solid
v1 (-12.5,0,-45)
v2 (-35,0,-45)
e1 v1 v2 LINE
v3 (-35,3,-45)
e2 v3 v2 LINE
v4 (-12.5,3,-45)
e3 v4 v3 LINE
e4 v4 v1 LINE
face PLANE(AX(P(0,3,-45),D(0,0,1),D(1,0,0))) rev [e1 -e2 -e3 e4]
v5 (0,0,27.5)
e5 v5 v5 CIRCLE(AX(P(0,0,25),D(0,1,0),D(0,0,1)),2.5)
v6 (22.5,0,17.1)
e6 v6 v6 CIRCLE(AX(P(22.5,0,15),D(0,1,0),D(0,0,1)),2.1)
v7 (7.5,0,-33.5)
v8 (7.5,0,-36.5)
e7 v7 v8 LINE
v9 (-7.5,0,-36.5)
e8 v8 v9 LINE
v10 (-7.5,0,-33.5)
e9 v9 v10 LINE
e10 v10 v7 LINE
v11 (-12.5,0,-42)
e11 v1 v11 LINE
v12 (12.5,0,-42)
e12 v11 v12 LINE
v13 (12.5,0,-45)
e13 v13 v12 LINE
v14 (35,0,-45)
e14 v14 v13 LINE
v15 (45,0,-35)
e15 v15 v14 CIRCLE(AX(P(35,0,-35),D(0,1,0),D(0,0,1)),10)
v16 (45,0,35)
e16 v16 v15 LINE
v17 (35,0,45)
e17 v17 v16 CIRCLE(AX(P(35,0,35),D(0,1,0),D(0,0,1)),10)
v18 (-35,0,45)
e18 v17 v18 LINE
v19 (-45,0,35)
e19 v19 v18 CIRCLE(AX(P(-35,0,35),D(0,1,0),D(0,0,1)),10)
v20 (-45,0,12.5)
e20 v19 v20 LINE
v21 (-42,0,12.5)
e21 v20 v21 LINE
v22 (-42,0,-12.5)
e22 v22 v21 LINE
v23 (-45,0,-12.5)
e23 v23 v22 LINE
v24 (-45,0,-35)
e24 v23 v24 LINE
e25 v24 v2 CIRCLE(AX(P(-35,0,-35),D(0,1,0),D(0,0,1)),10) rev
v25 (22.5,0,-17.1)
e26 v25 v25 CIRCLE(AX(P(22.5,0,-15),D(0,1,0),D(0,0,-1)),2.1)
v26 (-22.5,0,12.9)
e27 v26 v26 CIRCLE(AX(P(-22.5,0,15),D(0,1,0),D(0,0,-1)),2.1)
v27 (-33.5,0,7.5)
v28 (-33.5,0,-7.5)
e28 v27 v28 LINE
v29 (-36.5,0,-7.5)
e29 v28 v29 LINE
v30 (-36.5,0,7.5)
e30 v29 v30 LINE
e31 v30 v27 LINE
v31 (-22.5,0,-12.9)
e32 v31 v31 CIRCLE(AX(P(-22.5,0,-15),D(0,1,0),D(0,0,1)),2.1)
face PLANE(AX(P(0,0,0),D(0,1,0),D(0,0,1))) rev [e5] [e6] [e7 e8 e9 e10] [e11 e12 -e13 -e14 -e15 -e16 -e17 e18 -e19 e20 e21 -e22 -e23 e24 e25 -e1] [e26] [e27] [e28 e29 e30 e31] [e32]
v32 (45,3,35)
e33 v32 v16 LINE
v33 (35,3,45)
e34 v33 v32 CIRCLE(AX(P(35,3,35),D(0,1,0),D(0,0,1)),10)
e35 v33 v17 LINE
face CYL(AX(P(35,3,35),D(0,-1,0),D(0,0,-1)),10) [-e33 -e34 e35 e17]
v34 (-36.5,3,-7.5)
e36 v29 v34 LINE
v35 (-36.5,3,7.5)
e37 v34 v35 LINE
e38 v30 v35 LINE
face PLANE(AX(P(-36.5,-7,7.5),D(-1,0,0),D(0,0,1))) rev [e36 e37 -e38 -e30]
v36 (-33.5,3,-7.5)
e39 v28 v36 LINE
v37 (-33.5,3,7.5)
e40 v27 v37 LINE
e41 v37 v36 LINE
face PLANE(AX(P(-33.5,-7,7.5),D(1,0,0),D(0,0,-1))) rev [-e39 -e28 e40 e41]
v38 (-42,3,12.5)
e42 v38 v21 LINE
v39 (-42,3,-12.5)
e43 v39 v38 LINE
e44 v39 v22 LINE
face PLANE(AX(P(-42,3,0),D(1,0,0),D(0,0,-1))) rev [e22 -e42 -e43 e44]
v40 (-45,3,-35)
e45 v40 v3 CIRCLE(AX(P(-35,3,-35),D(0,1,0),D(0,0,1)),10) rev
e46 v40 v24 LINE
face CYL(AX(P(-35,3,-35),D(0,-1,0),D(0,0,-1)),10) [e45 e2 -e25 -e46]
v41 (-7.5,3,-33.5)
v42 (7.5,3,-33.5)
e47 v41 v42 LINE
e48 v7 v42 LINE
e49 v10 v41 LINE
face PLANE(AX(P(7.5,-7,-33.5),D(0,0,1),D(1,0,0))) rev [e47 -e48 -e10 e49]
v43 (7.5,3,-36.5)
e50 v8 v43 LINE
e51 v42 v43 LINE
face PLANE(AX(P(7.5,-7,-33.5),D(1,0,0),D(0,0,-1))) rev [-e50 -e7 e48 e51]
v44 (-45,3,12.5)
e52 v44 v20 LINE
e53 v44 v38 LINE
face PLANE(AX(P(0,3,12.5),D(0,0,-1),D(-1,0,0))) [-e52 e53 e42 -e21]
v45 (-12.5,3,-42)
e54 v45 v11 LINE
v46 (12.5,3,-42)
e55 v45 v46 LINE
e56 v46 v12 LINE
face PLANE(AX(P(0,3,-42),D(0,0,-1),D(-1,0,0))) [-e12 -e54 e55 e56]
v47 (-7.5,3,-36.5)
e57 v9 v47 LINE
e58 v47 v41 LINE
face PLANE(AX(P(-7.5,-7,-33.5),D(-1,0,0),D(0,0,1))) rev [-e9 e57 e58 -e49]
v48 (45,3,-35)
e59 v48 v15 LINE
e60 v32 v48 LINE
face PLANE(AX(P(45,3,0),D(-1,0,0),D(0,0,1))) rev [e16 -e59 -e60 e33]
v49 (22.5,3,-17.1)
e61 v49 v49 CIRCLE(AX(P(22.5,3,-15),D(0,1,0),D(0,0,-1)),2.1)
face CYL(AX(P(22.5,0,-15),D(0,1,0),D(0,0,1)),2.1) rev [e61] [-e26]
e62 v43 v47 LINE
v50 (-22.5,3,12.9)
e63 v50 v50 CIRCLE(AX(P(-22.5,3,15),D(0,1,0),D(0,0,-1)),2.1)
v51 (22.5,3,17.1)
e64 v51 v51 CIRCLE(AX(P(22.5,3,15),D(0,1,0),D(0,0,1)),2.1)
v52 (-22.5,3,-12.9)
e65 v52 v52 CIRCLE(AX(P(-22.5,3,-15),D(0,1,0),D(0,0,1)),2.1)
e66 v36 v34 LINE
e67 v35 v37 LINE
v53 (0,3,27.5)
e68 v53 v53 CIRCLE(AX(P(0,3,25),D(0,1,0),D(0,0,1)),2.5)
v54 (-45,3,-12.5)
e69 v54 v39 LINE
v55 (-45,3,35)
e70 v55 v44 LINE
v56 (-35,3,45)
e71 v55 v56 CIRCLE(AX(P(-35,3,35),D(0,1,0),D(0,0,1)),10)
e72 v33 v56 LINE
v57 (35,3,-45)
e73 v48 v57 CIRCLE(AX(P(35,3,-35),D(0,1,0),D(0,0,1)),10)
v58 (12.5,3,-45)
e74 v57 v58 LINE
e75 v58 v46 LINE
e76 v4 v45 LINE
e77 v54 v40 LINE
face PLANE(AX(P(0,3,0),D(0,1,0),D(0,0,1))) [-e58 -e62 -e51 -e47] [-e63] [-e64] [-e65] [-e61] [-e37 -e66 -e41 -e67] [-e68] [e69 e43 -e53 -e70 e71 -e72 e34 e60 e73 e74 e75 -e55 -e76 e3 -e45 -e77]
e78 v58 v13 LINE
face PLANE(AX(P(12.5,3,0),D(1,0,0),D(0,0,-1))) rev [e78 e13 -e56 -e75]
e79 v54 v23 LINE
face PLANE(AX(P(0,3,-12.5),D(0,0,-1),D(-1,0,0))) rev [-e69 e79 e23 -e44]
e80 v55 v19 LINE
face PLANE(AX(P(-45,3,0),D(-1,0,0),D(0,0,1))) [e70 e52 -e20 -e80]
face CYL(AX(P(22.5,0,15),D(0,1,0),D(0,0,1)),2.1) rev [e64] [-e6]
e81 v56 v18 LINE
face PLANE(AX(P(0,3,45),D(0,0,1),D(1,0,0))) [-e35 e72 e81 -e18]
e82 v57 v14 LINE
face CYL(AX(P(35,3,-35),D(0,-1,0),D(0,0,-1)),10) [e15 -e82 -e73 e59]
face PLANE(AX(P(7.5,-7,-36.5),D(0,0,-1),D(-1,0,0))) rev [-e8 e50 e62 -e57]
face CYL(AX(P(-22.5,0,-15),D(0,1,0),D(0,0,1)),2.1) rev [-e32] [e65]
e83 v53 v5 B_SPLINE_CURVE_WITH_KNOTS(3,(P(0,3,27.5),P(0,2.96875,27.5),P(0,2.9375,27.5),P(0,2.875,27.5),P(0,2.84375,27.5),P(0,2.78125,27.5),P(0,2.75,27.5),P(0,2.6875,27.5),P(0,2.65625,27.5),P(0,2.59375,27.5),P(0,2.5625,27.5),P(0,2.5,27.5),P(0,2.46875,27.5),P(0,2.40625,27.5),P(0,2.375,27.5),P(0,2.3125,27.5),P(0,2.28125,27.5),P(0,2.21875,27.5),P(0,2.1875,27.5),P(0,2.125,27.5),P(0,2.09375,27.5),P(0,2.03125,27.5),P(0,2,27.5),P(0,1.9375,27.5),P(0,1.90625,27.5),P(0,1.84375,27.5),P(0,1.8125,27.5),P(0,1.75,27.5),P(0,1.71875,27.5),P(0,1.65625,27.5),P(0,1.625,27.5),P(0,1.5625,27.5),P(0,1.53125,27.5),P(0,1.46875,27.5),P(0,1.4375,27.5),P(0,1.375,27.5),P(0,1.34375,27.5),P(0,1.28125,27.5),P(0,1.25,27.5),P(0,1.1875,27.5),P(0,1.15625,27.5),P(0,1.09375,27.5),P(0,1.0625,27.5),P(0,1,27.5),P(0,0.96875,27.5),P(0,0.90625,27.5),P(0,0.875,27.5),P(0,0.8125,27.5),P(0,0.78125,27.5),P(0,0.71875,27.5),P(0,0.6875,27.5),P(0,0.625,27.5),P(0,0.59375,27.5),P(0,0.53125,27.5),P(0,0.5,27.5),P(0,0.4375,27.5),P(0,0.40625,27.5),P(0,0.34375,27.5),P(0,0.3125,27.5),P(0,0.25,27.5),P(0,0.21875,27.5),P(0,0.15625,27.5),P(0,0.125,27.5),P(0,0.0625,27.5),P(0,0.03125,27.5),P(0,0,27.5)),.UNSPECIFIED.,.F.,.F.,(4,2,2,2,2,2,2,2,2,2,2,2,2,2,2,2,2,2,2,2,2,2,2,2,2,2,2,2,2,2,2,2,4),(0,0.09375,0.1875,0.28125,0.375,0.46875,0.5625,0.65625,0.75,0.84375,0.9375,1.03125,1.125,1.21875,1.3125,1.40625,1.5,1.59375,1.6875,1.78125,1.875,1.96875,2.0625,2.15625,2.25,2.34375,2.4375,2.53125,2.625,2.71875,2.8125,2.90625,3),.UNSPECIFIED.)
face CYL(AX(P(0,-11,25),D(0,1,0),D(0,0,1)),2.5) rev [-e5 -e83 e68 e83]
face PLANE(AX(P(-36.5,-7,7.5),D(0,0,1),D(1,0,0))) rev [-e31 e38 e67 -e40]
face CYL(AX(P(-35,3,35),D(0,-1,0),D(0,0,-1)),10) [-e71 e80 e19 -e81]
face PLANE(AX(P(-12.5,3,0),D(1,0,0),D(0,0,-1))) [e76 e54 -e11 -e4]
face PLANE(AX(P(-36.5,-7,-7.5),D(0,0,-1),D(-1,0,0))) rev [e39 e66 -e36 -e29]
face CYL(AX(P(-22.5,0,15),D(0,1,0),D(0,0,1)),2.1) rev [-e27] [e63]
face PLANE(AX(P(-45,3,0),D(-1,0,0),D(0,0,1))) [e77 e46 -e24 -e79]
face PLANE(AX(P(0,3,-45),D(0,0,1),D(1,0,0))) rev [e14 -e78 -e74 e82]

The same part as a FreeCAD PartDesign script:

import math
import FreeCAD as App
import Part
import Sketcher


def add_polygon(sketch, points):
    """Adds a closed chain of lines whose ends are joined by coincident constraints."""
    first, n = sketch.GeometryCount, len(points)
    for a, b in zip(points, points[1:] + points[:1]):
        sketch.addGeometry(Part.LineSegment(App.Vector(*a, 0), App.Vector(*b, 0)), False)
    for i in range(n):
        sketch.addConstraint(Sketcher.Constraint("Coincident", first + i, 2, first + (i + 1) % n, 1))

doc = App.newDocument("Part")
body = doc.addObject("PartDesign::Body", "Body")

# Sketch on XZ plane
sketch1 = body.newObject("Sketcher::SketchObject", "Sketch")
sketch1.AttachmentSupport = (doc.getObject("XZ_Plane"), [""])
sketch1.MapMode = "FlatFace"
sketch1.addGeometry([
    Part.LineSegment(App.Vector(-35, 45, 0), App.Vector(35, 45, 0)),  # 0
    Part.ArcOfCircle(Part.Circle(App.Vector(35, 35, 0), App.Vector(0, 0, 1), 10), math.radians(0), math.radians(90)),  # 1
    Part.LineSegment(App.Vector(45, 35, 0), App.Vector(45, -35, 0)),  # 2
    Part.ArcOfCircle(Part.Circle(App.Vector(35, -35, 0), App.Vector(0, 0, 1), 10), math.radians(-90), math.radians(0)),  # 3
    Part.LineSegment(App.Vector(35, -45, 0), App.Vector(12.5, -45, 0)),  # 4
    Part.LineSegment(App.Vector(12.5, -45, 0), App.Vector(12.5, -42, 0)),  # 5
    Part.LineSegment(App.Vector(12.5, -42, 0), App.Vector(-12.5, -42, 0)),  # 6
    Part.LineSegment(App.Vector(-12.5, -42, 0), App.Vector(-12.5, -45, 0)),  # 7
    Part.LineSegment(App.Vector(-12.5, -45, 0), App.Vector(-35, -45, 0)),  # 8
    Part.ArcOfCircle(Part.Circle(App.Vector(-35, -35, 0), App.Vector(0, 0, 1), 10), math.radians(180), math.radians(270)),  # 9
    Part.LineSegment(App.Vector(-45, -35, 0), App.Vector(-45, -12.5, 0)),  # 10
    Part.LineSegment(App.Vector(-45, -12.5, 0), App.Vector(-42, -12.5, 0)),  # 11
    Part.LineSegment(App.Vector(-42, -12.5, 0), App.Vector(-42, 12.5, 0)),  # 12
    Part.LineSegment(App.Vector(-42, 12.5, 0), App.Vector(-45, 12.5, 0)),  # 13
    Part.LineSegment(App.Vector(-45, 12.5, 0), App.Vector(-45, 35, 0)),  # 14
    Part.ArcOfCircle(Part.Circle(App.Vector(-35, 35, 0), App.Vector(0, 0, 1), 10), math.radians(90), math.radians(180)),  # 15
], False)
sketch1.addConstraint([
    Sketcher.Constraint("Tangent", 0, 2, 1, 2),
    Sketcher.Constraint("Tangent", 1, 1, 2, 1),
    Sketcher.Constraint("Tangent", 2, 2, 3, 2),
    Sketcher.Constraint("Tangent", 3, 1, 4, 1),
    Sketcher.Constraint("Coincident", 4, 2, 5, 1),
    Sketcher.Constraint("Coincident", 5, 2, 6, 1),
    Sketcher.Constraint("Coincident", 6, 2, 7, 1),
    Sketcher.Constraint("Coincident", 7, 2, 8, 1),
    Sketcher.Constraint("Tangent", 8, 2, 9, 2),
    Sketcher.Constraint("Tangent", 9, 1, 10, 1),
    Sketcher.Constraint("Coincident", 10, 2, 11, 1),
    Sketcher.Constraint("Coincident", 11, 2, 12, 1),
    Sketcher.Constraint("Coincident", 12, 2, 13, 1),
    Sketcher.Constraint("Coincident", 13, 2, 14, 1),
    Sketcher.Constraint("Tangent", 14, 2, 15, 2),
    Sketcher.Constraint("Tangent", 15, 1, 0, 1),
    Sketcher.Constraint("Horizontal", 0),
    Sketcher.Constraint("Vertical", 2),
    Sketcher.Constraint("Horizontal", 4),
    Sketcher.Constraint("Vertical", 5),
    Sketcher.Constraint("Horizontal", 6),
    Sketcher.Constraint("Vertical", 7),
    Sketcher.Constraint("Horizontal", 8),
    Sketcher.Constraint("Vertical", 10),
    Sketcher.Constraint("Horizontal", 11),
    Sketcher.Constraint("Vertical", 12),
    Sketcher.Constraint("Horizontal", 13),
    Sketcher.Constraint("Vertical", 14),
    Sketcher.Constraint("Equal", 1, 3),
    Sketcher.Constraint("Equal", 3, 9),
    Sketcher.Constraint("Equal", 9, 15),
    Sketcher.Constraint("Symmetric", 1, 3, 9, 3, -1, 1),
    Sketcher.Constraint("Symmetric", 3, 3, 15, 3, -1, 1),
    Sketcher.Constraint("Equal", 4, 8),
    Sketcher.Constraint("Equal", 0, 2),
    Sketcher.Constraint("Equal", 13, 5),
    Sketcher.Constraint("Equal", 8, 10),
    Sketcher.Constraint("Equal", 6, 12),
    Sketcher.Constraint("Radius", 1, 10.0),
    Sketcher.Constraint("DistanceX", 0, 1, 0, 2, 70.0),
    Sketcher.Constraint("DistanceX", 6, 2, 6, 1, 25.0),
    Sketcher.Constraint("DistanceX", 11, 1, 11, 2, 3.0),
])
pad1 = body.newObject("PartDesign::Pad", "Pad")
pad1.Profile = sketch1
pad1.Length = 3
pad1.Reversed = True

# Sketch on XZ plane
sketch2 = body.newObject("Sketcher::SketchObject", "Sketch001")
sketch2.AttachmentSupport = (doc.getObject("XZ_Plane"), [""])
sketch2.MapMode = "FlatFace"
sketch2.AttachmentOffset = App.Placement(App.Vector(0, 0, -3), App.Rotation())
sketch2.addGeometry([
    Part.Circle(App.Vector(-22.5, -15, 0), App.Vector(0, 0, 1), 2.1),
    Part.Circle(App.Vector(22.5, -15, 0), App.Vector(0, 0, 1), 2.1),
    Part.Circle(App.Vector(22.5, 15, 0), App.Vector(0, 0, 1), 2.1),
    Part.Circle(App.Vector(-22.5, 15, 0), App.Vector(0, 0, 1), 2.1),
], False)
sketch2.addConstraint([
    Sketcher.Constraint("Equal", 0, 1),
    Sketcher.Constraint("Equal", 1, 2),
    Sketcher.Constraint("Equal", 2, 3),
    Sketcher.Constraint("Symmetric", 0, 3, 2, 3, -1, 1),
    Sketcher.Constraint("Symmetric", 1, 3, 3, 3, -1, 1),
    Sketcher.Constraint("Symmetric", 0, 3, 1, 3, -2),
    Sketcher.Constraint("Diameter", 0, 4.2),
    Sketcher.Constraint("DistanceY", 0, 3, -1, 1, 15.0),
    Sketcher.Constraint("DistanceX", 0, 3, 1, 3, 45.0),
])
pocket1 = body.newObject("PartDesign::Pocket", "Pocket")
pocket1.Profile = sketch2
pocket1.Length = 3
pocket1.Reversed = True

# Sketch on XZ plane
sketch3 = body.newObject("Sketcher::SketchObject", "Sketch002")
sketch3.AttachmentSupport = (doc.getObject("XZ_Plane"), [""])
sketch3.MapMode = "FlatFace"
sketch3.AttachmentOffset = App.Placement(App.Vector(0, 0, -3), App.Rotation())
add_polygon(sketch3, [(-7.5, -36.5), (-7.5, -33.5), (7.5, -33.5), (7.5, -36.5)])  # lines 0-3
add_polygon(sketch3, [(-36.5, -7.5), (-36.5, 7.5), (-33.5, 7.5), (-33.5, -7.5)])  # lines 4-7
sketch3.addConstraint([
    Sketcher.Constraint("Vertical", 0),
    Sketcher.Constraint("Horizontal", 1),
    Sketcher.Constraint("Vertical", 2),
    Sketcher.Constraint("Horizontal", 3),
    Sketcher.Constraint("Vertical", 4),
    Sketcher.Constraint("Horizontal", 5),
    Sketcher.Constraint("Vertical", 6),
    Sketcher.Constraint("Horizontal", 7),
    Sketcher.Constraint("Equal", 7, 0),
    Sketcher.Constraint("Equal", 3, 4),
    Sketcher.Constraint("DistanceX", 1, 1, 1, 2, 15.0),
    Sketcher.Constraint("DistanceX", 5, 1, 5, 2, 3.0),
    Sketcher.Constraint("DistanceX", 4, 2, 0, 2, 29.0),
    Sketcher.Constraint("DistanceY", 0, 2, 4, 2, 41.0),
    Sketcher.Constraint("DistanceX", 0, 2, -1, 1, 7.5),
    Sketcher.Constraint("DistanceY", 0, 2, -1, 1, 33.5),
])
pocket2 = body.newObject("PartDesign::Pocket", "Pocket001")
pocket2.Profile = sketch3
pocket2.Length = 10
pocket2.Reversed = True

# Sketch on XZ plane
sketch4 = body.newObject("Sketcher::SketchObject", "Sketch003")
sketch4.AttachmentSupport = (doc.getObject("XZ_Plane"), [""])
sketch4.MapMode = "FlatFace"
sketch4.AttachmentOffset = App.Placement(App.Vector(0, 0, -3), App.Rotation())
sketch4.addGeometry(Part.Circle(App.Vector(0, 25, 0), App.Vector(0, 0, 1), 2.5), False)
sketch4.addConstraint([
    Sketcher.Constraint("PointOnObject", 0, 3, -2),
    Sketcher.Constraint("Diameter", 0, 5.0),
    Sketcher.Constraint("DistanceY", -1, 1, 0, 3, 25.0),
])
pocket3 = body.newObject("PartDesign::Pocket", "Pocket002")
pocket3.Profile = sketch4
pocket3.Length = 14
pocket3.Reversed = True

doc.recompute()
